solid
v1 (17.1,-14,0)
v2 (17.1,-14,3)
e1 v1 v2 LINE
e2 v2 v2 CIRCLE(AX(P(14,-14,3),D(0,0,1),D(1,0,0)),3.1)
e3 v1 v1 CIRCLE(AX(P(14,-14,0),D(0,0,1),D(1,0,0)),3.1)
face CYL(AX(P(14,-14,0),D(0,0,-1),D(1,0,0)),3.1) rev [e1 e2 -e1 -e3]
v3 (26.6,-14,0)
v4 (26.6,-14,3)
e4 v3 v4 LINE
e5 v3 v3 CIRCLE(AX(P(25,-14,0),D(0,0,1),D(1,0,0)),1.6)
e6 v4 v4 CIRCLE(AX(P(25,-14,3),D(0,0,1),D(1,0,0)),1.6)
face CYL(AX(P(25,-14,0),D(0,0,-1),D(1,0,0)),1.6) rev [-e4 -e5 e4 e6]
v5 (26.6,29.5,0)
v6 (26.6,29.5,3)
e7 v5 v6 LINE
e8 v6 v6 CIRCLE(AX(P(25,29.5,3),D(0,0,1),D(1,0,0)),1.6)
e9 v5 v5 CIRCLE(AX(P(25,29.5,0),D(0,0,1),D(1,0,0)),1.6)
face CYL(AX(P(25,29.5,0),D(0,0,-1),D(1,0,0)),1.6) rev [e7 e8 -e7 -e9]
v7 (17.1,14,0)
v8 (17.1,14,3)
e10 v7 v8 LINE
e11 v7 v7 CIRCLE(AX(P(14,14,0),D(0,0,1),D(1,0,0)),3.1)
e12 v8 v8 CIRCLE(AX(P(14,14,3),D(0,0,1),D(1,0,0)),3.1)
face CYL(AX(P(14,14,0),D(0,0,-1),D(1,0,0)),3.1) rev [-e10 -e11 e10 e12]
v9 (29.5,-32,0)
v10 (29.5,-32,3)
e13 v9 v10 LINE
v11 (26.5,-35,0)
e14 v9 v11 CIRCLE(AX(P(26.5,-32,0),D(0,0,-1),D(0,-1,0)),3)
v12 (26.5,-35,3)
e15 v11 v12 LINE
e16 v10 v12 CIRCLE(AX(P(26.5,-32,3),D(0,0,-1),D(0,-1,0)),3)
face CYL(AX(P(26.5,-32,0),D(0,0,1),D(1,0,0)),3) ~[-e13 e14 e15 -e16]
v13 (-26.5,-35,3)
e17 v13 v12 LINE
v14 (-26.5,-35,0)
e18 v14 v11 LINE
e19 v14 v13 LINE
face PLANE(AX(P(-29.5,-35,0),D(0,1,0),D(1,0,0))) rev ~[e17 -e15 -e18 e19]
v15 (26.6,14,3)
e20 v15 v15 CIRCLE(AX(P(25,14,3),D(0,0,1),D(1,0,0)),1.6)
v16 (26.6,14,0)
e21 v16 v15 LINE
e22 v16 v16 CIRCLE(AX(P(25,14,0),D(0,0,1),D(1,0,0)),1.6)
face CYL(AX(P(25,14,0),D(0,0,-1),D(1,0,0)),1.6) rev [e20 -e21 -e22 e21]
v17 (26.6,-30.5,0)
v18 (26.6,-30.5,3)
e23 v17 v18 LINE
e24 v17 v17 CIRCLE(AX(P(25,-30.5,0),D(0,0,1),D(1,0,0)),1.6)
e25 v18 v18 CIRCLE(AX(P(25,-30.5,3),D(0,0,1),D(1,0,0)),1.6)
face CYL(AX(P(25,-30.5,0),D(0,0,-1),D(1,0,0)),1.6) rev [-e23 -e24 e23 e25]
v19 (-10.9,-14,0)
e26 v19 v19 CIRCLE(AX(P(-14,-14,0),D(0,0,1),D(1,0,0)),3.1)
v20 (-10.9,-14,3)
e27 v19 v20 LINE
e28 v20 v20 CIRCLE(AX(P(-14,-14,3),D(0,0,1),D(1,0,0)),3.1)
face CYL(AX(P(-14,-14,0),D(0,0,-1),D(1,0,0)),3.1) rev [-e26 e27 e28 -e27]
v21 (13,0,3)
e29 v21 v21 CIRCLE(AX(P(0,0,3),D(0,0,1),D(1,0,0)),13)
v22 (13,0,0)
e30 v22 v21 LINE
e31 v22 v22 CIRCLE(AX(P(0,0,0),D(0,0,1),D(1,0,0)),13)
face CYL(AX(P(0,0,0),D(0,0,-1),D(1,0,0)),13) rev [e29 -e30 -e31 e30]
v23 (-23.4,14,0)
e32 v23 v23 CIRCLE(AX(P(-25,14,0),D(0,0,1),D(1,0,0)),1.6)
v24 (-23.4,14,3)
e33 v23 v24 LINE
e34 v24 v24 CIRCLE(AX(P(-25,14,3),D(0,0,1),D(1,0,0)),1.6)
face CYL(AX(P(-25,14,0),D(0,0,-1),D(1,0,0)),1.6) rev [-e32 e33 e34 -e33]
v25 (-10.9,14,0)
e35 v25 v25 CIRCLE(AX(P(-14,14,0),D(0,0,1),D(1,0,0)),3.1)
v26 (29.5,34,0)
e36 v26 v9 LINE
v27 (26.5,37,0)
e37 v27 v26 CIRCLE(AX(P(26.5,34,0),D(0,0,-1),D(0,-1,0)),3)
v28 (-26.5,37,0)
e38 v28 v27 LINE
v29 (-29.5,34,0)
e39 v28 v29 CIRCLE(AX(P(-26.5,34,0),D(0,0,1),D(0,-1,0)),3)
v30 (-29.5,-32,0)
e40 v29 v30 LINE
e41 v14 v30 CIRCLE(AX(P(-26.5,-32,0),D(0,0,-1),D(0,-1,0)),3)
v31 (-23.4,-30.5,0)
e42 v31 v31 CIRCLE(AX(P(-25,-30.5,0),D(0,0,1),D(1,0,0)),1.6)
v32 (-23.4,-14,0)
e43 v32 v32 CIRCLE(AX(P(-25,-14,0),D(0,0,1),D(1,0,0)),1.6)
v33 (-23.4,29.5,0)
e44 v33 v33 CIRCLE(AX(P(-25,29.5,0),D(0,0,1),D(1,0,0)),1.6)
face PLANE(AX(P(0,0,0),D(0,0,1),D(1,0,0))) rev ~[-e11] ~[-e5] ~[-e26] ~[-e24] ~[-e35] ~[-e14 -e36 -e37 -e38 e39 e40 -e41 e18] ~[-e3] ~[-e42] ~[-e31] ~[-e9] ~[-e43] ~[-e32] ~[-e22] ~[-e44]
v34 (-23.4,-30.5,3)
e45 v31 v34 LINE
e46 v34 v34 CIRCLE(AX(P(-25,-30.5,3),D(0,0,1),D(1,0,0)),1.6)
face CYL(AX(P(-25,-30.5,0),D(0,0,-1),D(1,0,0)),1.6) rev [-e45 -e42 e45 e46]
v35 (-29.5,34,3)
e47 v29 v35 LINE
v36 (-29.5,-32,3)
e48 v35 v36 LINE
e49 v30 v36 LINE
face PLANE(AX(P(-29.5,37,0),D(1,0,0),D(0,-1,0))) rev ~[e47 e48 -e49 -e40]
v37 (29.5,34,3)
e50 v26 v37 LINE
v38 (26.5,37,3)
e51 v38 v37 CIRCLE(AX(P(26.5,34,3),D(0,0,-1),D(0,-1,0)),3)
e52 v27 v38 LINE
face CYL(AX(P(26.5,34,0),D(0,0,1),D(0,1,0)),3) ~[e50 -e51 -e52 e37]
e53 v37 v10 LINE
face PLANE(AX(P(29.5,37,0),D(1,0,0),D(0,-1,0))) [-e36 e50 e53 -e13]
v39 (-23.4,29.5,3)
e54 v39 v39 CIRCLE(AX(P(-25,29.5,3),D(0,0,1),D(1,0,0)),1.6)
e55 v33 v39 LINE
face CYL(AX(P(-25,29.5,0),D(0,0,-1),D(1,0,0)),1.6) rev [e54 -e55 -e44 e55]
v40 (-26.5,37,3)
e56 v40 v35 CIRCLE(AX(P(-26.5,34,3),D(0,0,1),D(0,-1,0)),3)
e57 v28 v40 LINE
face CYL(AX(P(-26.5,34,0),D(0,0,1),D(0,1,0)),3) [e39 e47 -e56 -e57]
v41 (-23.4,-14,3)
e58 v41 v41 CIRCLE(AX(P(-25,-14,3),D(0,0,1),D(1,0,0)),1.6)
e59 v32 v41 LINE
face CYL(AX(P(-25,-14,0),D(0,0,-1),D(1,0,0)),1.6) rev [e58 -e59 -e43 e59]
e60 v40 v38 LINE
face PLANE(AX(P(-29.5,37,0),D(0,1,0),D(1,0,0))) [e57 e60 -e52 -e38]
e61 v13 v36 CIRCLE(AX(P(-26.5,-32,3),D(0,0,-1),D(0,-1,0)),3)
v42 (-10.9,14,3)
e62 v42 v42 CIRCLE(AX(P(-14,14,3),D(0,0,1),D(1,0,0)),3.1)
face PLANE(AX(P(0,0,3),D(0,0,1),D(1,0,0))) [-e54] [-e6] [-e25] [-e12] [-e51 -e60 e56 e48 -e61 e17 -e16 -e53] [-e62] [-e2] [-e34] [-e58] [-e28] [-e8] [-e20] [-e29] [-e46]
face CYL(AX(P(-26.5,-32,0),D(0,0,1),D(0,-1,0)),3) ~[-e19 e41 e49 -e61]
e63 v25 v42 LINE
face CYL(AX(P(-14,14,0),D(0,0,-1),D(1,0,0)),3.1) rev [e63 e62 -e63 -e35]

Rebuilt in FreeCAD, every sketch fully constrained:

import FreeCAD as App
import Part
import Sketcher

V = App.Vector
Q = App.Units.Quantity


def edges_at(feature, points):
    """Names of the edges that pass closest to the given points."""
    edges = feature.Shape.Edges
    near = lambda p: min(range(len(edges)), key=lambda i: edges[i].distToShape(Part.Vertex(*p))[0])
    return sorted({f"Edge{near(p) + 1}" for p in points})

doc = App.newDocument("Part")
body = doc.addObject("PartDesign::Body", "Body")

# Sketch on XY plane
sketch1 = doc.addObject("Sketcher::SketchObject", "Sketch")
body.addObject(sketch1)
sketch1.AttachmentSupport = (doc.XY_Plane, [""])
sketch1.MapMode = "FlatFace"
sketch1.addGeometry(Part.LineSegment(V(29.5, 37, 0), V(-29.5, 37, 0)), False)
sketch1.addGeometry(Part.LineSegment(V(-29.5, 37, 0), V(-29.5, -35, 0)), False)
sketch1.addGeometry(Part.LineSegment(V(-29.5, -35, 0), V(29.5, -35, 0)), False)
sketch1.addGeometry(Part.LineSegment(V(29.5, -35, 0), V(29.5, 37, 0)), False)
sketch1.addGeometry(Part.Circle(V(-25, -30.5, 0), V(0, 0, 1), 1.6), False)
sketch1.addGeometry(Part.Circle(V(-25, -14, 0), V(0, 0, 1), 1.6), False)
sketch1.addGeometry(Part.Circle(V(-14, -14, 0), V(0, 0, 1), 3.1), False)
sketch1.addGeometry(Part.Circle(V(25, -30.5, 0), V(0, 0, 1), 1.6), False)
sketch1.addGeometry(Part.Circle(V(14, -14, 0), V(0, 0, 1), 3.1), False)
sketch1.addGeometry(Part.Circle(V(0, 0, 0), V(0, 0, 1), 13), False)
sketch1.addGeometry(Part.Circle(V(25, -14, 0), V(0, 0, 1), 1.6), False)
sketch1.addGeometry(Part.Circle(V(-25, 14, 0), V(0, 0, 1), 1.6), False)
sketch1.addGeometry(Part.Circle(V(-14, 14, 0), V(0, 0, 1), 3.1), False)
sketch1.addGeometry(Part.Circle(V(-25, 29.5, 0), V(0, 0, 1), 1.6), False)
sketch1.addGeometry(Part.Circle(V(14, 14, 0), V(0, 0, 1), 3.1), False)
sketch1.addGeometry(Part.Circle(V(25, 14, 0), V(0, 0, 1), 1.6), False)
sketch1.addGeometry(Part.Circle(V(25, 29.5, 0), V(0, 0, 1), 1.6), False)
sketch1.addConstraint(Sketcher.Constraint("Coincident", 0, 2, 1, 1))
sketch1.addConstraint(Sketcher.Constraint("Coincident", 1, 2, 2, 1))
sketch1.addConstraint(Sketcher.Constraint("Coincident", 2, 2, 3, 1))
sketch1.addConstraint(Sketcher.Constraint("Coincident", 3, 2, 0, 1))
sketch1.addConstraint(Sketcher.Constraint("Horizontal", 0))
sketch1.addConstraint(Sketcher.Constraint("Vertical", 1))
sketch1.addConstraint(Sketcher.Constraint("Horizontal", 2))
sketch1.addConstraint(Sketcher.Constraint("Vertical", 3))
sketch1.addConstraint(Sketcher.Constraint("Coincident", 9, 3, -1, 1))
sketch1.addConstraint(Sketcher.Constraint("Equal", 4, 5))
sketch1.addConstraint(Sketcher.Constraint("Equal", 5, 7))
sketch1.addConstraint(Sketcher.Constraint("Equal", 6, 8))
sketch1.addConstraint(Sketcher.Constraint("Equal", 7, 10))
sketch1.addConstraint(Sketcher.Constraint("Equal", 10, 11))
sketch1.addConstraint(Sketcher.Constraint("Equal", 8, 12))
sketch1.addConstraint(Sketcher.Constraint("Equal", 11, 13))
sketch1.addConstraint(Sketcher.Constraint("Equal", 12, 14))
sketch1.addConstraint(Sketcher.Constraint("Equal", 13, 15))
sketch1.addConstraint(Sketcher.Constraint("Equal", 15, 16))
sketch1.addConstraint(Sketcher.Constraint("Symmetric", 10, 3, 11, 3, -1, 1))
sketch1.addConstraint(Sketcher.Constraint("Symmetric", 8, 3, 12, 3, -1, 1))
sketch1.addConstraint(Sketcher.Constraint("Symmetric", 6, 3, 14, 3, -1, 1))
sketch1.addConstraint(Sketcher.Constraint("Symmetric", 5, 3, 15, 3, -1, 1))
sketch1.addConstraint(Sketcher.Constraint("Symmetric", 4, 3, 7, 3, -2))
sketch1.addConstraint(Sketcher.Constraint("Symmetric", 6, 3, 8, 3, -2))
sketch1.addConstraint(Sketcher.Constraint("Symmetric", 5, 3, 10, 3, -2))
sketch1.addConstraint(Sketcher.Constraint("Symmetric", 13, 3, 16, 3, -2))
sketch1.addConstraint(Sketcher.Constraint("Horizontal", 5, 3, 6, 3))
sketch1.addConstraint(Sketcher.Constraint("Vertical", 4, 3, 5, 3))
sketch1.addConstraint(Sketcher.Constraint("Vertical", 11, 3, 13, 3))
sketch1.addConstraint(Sketcher.Constraint("Diameter", 9, Q("26 mm")))
sketch1.addConstraint(Sketcher.Constraint("Diameter", 4, Q("3.2 mm")))
sketch1.addConstraint(Sketcher.Constraint("Diameter", 6, Q("6.2 mm")))
sketch1.addConstraint(Sketcher.Constraint("DistanceY", 5, 3, -1, 1, Q("14 mm")))
sketch1.addConstraint(Sketcher.Constraint("DistanceX", 6, 3, -1, 1, Q("14 mm")))
sketch1.addConstraint(Sketcher.Constraint("DistanceX", 0, 2, 13, 3, Q("4.5 mm")))
sketch1.addConstraint(Sketcher.Constraint("DistanceY", 13, 3, 0, 2, Q("7.5 mm")))
sketch1.addConstraint(Sketcher.Constraint("DistanceY", 1, 2, 4, 3, Q("4.5 mm")))
sketch1.addConstraint(Sketcher.Constraint("DistanceX", 7, 3, 2, 2, Q("4.5 mm")))
sketch1.addConstraint(Sketcher.Constraint("DistanceX", 0, 2, 0, 1, Q("59 mm")))
sketch1.addConstraint(Sketcher.Constraint("DistanceY", 1, 2, 1, 1, Q("72 mm")))
sketch1.addConstraint(Sketcher.Constraint("DistanceY", -1, 1, 0, 2, Q("37 mm")))
pad1 = doc.addObject("PartDesign::Pad", "Pad")
body.addObject(pad1)
pad1.Profile = sketch1
pad1.Length = 3
doc.recompute()

fillet = doc.addObject("PartDesign::Fillet", "Fillet")
body.addObject(fillet)
fillet.Base = (pad1, edges_at(pad1, [
    (-29.5, 37, 1.5),
    (29.5, 37, 1.5),
    (29.5, -35, 1.5),
    (-29.5, -35, 1.5),
]))
fillet.Radius = 3

doc.recompute()
